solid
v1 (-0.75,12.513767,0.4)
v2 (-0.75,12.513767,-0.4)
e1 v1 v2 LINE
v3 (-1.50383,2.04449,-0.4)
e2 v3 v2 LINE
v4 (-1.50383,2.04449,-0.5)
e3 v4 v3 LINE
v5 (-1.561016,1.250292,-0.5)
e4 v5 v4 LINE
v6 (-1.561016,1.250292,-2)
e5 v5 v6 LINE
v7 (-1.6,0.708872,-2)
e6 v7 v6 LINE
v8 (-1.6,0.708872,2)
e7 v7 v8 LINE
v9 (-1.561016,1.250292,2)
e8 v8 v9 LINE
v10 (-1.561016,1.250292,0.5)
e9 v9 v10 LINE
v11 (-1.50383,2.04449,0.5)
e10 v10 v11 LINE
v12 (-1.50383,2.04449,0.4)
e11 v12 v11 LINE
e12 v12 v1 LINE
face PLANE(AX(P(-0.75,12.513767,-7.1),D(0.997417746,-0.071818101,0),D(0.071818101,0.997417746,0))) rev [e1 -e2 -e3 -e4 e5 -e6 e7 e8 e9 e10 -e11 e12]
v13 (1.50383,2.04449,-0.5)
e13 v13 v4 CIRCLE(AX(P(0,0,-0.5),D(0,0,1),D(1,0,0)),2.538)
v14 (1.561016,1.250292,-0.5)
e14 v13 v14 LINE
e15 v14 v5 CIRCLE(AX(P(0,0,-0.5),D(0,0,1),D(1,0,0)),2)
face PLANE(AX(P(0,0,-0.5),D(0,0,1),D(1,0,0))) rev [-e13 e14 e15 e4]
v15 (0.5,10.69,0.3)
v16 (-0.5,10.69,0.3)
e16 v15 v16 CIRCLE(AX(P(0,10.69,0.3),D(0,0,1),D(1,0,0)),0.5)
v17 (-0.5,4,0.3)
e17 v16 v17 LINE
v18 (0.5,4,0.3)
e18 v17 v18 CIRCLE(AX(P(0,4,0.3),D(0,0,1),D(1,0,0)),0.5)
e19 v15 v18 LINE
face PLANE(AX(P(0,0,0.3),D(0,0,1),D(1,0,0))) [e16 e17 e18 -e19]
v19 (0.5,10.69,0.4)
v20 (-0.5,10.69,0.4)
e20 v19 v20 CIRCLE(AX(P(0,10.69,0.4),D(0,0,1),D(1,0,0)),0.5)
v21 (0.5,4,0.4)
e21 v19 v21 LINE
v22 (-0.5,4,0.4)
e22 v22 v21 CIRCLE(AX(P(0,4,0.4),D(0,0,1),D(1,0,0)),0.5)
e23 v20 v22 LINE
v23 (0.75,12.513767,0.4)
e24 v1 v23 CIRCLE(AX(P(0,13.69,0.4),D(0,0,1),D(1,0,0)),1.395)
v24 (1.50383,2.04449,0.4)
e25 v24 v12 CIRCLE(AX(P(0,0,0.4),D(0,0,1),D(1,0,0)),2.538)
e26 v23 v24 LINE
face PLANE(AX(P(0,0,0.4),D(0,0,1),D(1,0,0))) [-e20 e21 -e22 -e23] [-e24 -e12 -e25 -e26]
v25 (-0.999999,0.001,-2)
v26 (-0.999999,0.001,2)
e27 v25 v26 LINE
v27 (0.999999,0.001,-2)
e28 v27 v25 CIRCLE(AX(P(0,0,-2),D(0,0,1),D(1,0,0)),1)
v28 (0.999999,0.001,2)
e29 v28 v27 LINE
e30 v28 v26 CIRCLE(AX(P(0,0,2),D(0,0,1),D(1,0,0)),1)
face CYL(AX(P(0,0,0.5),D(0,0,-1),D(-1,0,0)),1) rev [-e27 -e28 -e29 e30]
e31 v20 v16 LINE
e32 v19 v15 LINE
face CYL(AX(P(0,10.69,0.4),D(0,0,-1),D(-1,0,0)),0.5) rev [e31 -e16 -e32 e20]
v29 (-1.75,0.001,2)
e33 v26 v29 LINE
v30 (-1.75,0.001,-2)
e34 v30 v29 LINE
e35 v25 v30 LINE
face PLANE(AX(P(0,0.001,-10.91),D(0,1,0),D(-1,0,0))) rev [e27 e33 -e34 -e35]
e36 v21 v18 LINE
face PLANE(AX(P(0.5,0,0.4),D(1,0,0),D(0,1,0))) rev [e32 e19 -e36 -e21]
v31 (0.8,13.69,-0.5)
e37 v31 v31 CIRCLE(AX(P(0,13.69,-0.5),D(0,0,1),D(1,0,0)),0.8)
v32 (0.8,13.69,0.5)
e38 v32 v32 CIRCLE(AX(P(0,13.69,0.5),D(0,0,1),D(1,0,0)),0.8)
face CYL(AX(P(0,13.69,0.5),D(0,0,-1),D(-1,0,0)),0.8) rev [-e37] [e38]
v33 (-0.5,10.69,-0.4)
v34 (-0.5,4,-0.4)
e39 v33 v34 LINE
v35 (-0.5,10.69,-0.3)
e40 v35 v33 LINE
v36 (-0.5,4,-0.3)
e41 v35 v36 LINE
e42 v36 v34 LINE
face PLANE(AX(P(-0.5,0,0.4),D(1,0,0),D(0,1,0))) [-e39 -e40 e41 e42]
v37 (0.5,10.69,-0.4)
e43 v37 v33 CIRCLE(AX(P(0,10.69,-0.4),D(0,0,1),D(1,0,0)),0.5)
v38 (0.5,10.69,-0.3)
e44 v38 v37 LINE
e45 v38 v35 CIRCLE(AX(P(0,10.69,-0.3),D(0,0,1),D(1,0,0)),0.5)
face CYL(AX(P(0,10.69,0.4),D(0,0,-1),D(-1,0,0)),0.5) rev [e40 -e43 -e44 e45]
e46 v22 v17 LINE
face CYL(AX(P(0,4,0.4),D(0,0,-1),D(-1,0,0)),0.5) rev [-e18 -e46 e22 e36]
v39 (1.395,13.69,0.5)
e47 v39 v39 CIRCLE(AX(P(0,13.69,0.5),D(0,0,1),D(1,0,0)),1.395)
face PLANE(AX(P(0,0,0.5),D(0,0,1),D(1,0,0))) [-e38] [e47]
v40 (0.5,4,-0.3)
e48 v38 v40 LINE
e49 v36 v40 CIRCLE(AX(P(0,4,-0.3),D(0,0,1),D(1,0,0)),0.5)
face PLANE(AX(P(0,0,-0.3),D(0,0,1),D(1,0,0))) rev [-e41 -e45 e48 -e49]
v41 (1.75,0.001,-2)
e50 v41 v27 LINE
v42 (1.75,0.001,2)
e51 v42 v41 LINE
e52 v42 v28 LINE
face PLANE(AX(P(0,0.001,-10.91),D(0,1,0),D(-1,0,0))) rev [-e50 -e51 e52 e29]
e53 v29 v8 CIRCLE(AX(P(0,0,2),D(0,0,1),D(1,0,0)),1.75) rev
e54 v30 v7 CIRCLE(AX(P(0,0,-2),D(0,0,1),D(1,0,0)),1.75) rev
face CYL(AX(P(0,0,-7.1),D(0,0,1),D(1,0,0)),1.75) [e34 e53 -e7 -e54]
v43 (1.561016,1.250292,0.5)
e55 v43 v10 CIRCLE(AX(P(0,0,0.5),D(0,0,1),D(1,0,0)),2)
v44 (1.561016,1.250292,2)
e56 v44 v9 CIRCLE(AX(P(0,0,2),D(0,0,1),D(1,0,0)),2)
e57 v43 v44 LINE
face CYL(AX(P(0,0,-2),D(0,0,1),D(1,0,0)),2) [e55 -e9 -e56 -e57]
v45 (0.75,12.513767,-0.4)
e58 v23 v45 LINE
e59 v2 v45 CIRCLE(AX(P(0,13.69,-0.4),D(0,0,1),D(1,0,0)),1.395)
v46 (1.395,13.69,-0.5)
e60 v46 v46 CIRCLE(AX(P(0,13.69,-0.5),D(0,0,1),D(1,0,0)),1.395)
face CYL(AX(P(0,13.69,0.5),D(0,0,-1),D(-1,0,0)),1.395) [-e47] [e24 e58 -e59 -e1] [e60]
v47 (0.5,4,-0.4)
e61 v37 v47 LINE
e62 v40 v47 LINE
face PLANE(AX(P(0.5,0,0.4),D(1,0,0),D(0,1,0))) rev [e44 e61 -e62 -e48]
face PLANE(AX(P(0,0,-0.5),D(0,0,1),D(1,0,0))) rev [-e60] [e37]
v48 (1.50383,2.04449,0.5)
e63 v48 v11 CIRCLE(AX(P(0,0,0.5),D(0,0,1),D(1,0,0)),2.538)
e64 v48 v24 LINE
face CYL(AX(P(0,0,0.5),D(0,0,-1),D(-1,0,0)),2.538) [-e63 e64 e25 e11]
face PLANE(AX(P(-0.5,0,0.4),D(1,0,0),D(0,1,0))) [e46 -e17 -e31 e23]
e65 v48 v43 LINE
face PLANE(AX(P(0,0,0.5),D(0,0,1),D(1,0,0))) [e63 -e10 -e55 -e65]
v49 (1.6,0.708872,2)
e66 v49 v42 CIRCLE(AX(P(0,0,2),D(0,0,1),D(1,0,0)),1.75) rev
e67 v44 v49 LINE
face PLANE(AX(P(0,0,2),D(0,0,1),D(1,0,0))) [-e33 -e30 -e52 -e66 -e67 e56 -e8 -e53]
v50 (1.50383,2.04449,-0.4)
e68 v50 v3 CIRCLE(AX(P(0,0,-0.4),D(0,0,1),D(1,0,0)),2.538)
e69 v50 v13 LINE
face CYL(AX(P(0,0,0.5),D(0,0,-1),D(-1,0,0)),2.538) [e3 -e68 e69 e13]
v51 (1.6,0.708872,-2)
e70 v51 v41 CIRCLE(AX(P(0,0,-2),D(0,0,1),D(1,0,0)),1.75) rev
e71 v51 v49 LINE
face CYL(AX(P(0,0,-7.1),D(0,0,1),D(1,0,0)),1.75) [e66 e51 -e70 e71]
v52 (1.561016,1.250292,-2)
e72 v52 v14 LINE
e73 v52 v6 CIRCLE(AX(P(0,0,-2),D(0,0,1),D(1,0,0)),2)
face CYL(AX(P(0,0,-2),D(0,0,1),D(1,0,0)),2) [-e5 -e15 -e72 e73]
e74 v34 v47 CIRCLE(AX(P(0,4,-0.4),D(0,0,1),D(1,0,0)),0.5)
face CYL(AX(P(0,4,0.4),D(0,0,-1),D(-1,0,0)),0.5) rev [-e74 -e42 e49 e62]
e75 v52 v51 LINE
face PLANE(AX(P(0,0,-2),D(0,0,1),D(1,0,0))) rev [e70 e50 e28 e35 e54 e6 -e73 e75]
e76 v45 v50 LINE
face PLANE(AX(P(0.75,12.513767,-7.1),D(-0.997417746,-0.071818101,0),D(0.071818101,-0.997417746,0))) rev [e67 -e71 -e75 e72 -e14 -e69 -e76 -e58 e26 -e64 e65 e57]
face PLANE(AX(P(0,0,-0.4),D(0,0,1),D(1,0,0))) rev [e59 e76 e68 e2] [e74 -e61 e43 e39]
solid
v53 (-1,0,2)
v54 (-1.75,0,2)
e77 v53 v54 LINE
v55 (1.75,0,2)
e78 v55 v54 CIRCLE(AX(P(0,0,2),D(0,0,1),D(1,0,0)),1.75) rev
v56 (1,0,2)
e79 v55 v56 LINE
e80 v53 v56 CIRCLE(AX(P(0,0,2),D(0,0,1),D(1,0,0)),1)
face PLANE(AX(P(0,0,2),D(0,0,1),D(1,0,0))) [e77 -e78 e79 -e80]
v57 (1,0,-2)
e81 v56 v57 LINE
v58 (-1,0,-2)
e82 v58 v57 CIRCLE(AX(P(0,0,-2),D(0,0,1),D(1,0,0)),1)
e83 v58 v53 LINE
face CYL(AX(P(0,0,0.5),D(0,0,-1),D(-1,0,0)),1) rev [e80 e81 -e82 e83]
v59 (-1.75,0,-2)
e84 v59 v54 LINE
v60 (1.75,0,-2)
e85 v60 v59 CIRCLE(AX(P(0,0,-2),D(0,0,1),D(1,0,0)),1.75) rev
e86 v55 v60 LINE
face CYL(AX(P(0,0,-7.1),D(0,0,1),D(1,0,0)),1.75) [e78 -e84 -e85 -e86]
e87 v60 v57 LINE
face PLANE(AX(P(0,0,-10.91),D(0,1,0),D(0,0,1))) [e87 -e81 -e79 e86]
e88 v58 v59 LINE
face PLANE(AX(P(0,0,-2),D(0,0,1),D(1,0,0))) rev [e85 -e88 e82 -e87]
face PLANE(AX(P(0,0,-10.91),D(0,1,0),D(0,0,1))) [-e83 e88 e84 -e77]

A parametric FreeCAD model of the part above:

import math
import FreeCAD as App
import Part
import Sketcher
from FreeCAD import Vector
Q = App.Units.Quantity


def add_polygon(sketch, points):
    """Adds a closed chain of lines whose ends are joined by coincident constraints."""
    first, n = sketch.GeometryCount, len(points)
    for a, b in zip(points, points[1:] + points[:1]):
        sketch.addGeometry(Part.LineSegment(App.Vector(*a, 0), App.Vector(*b, 0)), False)
    for i in range(n):
        sketch.addConstraint(Sketcher.Constraint("Coincident", first + i, 2, first + (i + 1) % n, 1))

doc = App.newDocument("Part")
body = doc.addObject("PartDesign::Body", "Body")

# Sketch on XY plane
sketch1 = body.newObject("Sketcher::SketchObject", "Sketch")
sketch1.AttachmentSupport = (doc.getObject("XY_Plane"), [""])
sketch1.MapMode = "FlatFace"
sketch1.addGeometry(Part.Circle(Vector(0, 13.69, 0), Vector(0, 0, 1), 1.395), False)
sketch1.addGeometry(Part.Circle(Vector(0, 13.69, 0), Vector(0, 0, 1), 0.8), False)
sketch1.addConstraint(Sketcher.Constraint("Coincident", 1, 3, 0, 3))
sketch1.addConstraint(Sketcher.Constraint("PointOnObject", 0, 3, -2))
sketch1.addConstraint(Sketcher.Constraint("Diameter", 1, Q("1.6 mm")))
sketch1.addConstraint(Sketcher.Constraint("Diameter", 0, Q("2.79 mm")))
sketch1.addConstraint(Sketcher.Constraint("DistanceY", -1, 1, 0, 3, Q("13.69 mm")))
pad1 = body.newObject("PartDesign::Pad", "Pad")
pad1.Profile = sketch1
pad1.Length = 1
pad1.Midplane = True
body2 = doc.addObject("PartDesign::Body", "Body001")

# Sketch on XY plane
sketch2 = body2.newObject("Sketcher::SketchObject", "Sketch001")
sketch2.AttachmentSupport = (doc.getObject("XY_Plane001"), [""])
sketch2.MapMode = "FlatFace"
sketch2.addGeometry(Part.Circle(Vector(0, 0, 0), Vector(0, 0, 1), 2.538), False)
sketch2.addGeometry(Part.Circle(Vector(0, 0, 0), Vector(0, 0, 1), 1), False)
sketch2.addConstraint(Sketcher.Constraint("Coincident", 0, 3, -1, 1))
sketch2.addConstraint(Sketcher.Constraint("Coincident", 1, 3, -1, 1))
sketch2.addConstraint(Sketcher.Constraint("Diameter", 1, Q("2 mm")))
sketch2.addConstraint(Sketcher.Constraint("Diameter", 0, Q("5.076 mm")))
pad2 = body2.newObject("PartDesign::Pad", "Pad001")
pad2.Profile = sketch2
pad2.Length = 1
pad2.Midplane = True
body.AllowCompound = True
doc.recompute()

boolean = body.newObject("PartDesign::Boolean", "Boolean")
boolean.Type = "Fuse"
boolean.addObjects([body2])

# Sketch on XY plane
sketch3 = body.newObject("Sketcher::SketchObject", "Sketch002")
sketch3.AttachmentSupport = (doc.getObject("XY_Plane"), [""])
sketch3.MapMode = "FlatFace"
sketch3.addGeometry(Part.ArcOfCircle(Part.Circle(Vector(0, 13.69, 0), Vector(0, 0, 1), 1.395), math.radians(-122.522748), math.radians(-57.477252)), False)
sketch3.addGeometry(Part.LineSegment(Vector(-0.75, 12.513767, 0), Vector(-1.65, 1.928456, 0)), False)
sketch3.addGeometry(Part.ArcOfCircle(Part.Circle(Vector(0, 0, 0), Vector(0, 0, 1), 2.538), math.radians(49.449486), math.radians(130.550514)), False)
sketch3.addGeometry(Part.LineSegment(Vector(1.65, 1.928456, 0), Vector(0.75, 12.513767, 0)), False)
sketch3.addGeometry(Part.LineSegment(Vector(-0.5, 4, 0), Vector(-0.5, 10.69, 0)), False)
sketch3.addGeometry(Part.ArcOfCircle(Part.Circle(Vector(0, 10.69, 0), Vector(0, 0, 1), 0.5), math.radians(0), math.radians(180)), False)
sketch3.addGeometry(Part.LineSegment(Vector(0.5, 10.69, 0), Vector(0.5, 4, 0)), False)
sketch3.addGeometry(Part.ArcOfCircle(Part.Circle(Vector(0, 4, 0), Vector(0, 0, 1), 0.5), math.radians(180), math.radians(360)), False)
sketch3.addConstraint(Sketcher.Constraint("Coincident", 0, 1, 1, 1))
sketch3.addConstraint(Sketcher.Constraint("Coincident", 1, 2, 2, 2))
sketch3.addConstraint(Sketcher.Constraint("Coincident", 2, 1, 3, 1))
sketch3.addConstraint(Sketcher.Constraint("Coincident", 3, 2, 0, 2))
sketch3.addConstraint(Sketcher.Constraint("Tangent", 4, 2, 5, 2))
sketch3.addConstraint(Sketcher.Constraint("Tangent", 5, 1, 6, 1))
sketch3.addConstraint(Sketcher.Constraint("Tangent", 6, 2, 7, 2))
sketch3.addConstraint(Sketcher.Constraint("Tangent", 7, 1, 4, 1))
sketch3.addConstraint(Sketcher.Constraint("Vertical", 4))
sketch3.addConstraint(Sketcher.Constraint("Vertical", 6))
sketch3.addConstraint(Sketcher.Constraint("Coincident", 2, 3, -1, 1))
sketch3.addConstraint(Sketcher.Constraint("Symmetric", 0, 1, 3, 2, -2))
sketch3.addConstraint(Sketcher.Constraint("PointOnObject", 5, 3, -2))
sketch3.addConstraint(Sketcher.Constraint("Horizontal", 1, 2, 2, 1))
sketch3.addConstraint(Sketcher.Constraint("Radius", 5, Q("0.5 mm")))
sketch3.addConstraint(Sketcher.Constraint("DistanceY", -1, 1, 7, 3, Q("4 mm")))
sketch3.addConstraint(Sketcher.Constraint("Radius", 0, Q("1.395 mm")))
sketch3.addConstraint(Sketcher.Constraint("Radius", 2, Q("2.538 mm")))
sketch3.addConstraint(Sketcher.Constraint("DistanceY", 5, 3, 0, 3, Q("3 mm")))
sketch3.addConstraint(Sketcher.Constraint("DistanceY", 4, 1, 4, 2, Q("6.69 mm")))
sketch3.addConstraint(Sketcher.Constraint("DistanceX", 1, 2, 0, 1, Q("0.9 mm")))
sketch3.addConstraint(Sketcher.Constraint("DistanceX", 1, 2, 2, 1, Q("3.3 mm")))
pad3 = body.newObject("PartDesign::Pad", "Pad002")
pad3.Profile = sketch3
pad3.Length = 0.8
pad3.Midplane = True

# Sketch on XY plane
sketch4 = body.newObject("Sketcher::SketchObject", "Sketch003")
sketch4.AttachmentSupport = (doc.getObject("XY_Plane"), [""])
sketch4.MapMode = "FlatFace"
sketch4.addGeometry(Part.LineSegment(Vector(-0.5, 10.69, 0), Vector(-0.5, 4, 0)), False)
sketch4.addGeometry(Part.ArcOfCircle(Part.Circle(Vector(0, 4, 0), Vector(0, 0, 1), 0.5), math.radians(180), math.radians(360)), False)
sketch4.addGeometry(Part.LineSegment(Vector(0.5, 4, 0), Vector(0.5, 10.69, 0)), False)
sketch4.addGeometry(Part.ArcOfCircle(Part.Circle(Vector(0, 10.69, 0), Vector(0, 0, 1), 0.5), math.radians(0), math.radians(180)), False)
sketch4.addConstraint(Sketcher.Constraint("Tangent", 0, 2, 1, 1))
sketch4.addConstraint(Sketcher.Constraint("Tangent", 1, 2, 2, 1))
sketch4.addConstraint(Sketcher.Constraint("Tangent", 2, 2, 3, 1))
sketch4.addConstraint(Sketcher.Constraint("Tangent", 3, 2, 0, 1))
sketch4.addConstraint(Sketcher.Constraint("Vertical", 0))
sketch4.addConstraint(Sketcher.Constraint("Vertical", 2))
sketch4.addConstraint(Sketcher.Constraint("PointOnObject", 1, 3, -2))
sketch4.addConstraint(Sketcher.Constraint("Radius", 1, Q("0.5 mm")))
sketch4.addConstraint(Sketcher.Constraint("DistanceY", -1, 1, 1, 3, Q("4 mm")))
sketch4.addConstraint(Sketcher.Constraint("DistanceY", 0, 2, 0, 1, Q("6.69 mm")))
pad4 = body.newObject("PartDesign::Pad", "Pad003")
pad4.Profile = sketch4
pad4.Length = 0.6
pad4.Midplane = True

# Sketch on XY plane
sketch5 = body.newObject("Sketcher::SketchObject", "Sketch004")
sketch5.AttachmentSupport = (doc.getObject("XY_Plane"), [""])
sketch5.MapMode = "FlatFace"
sketch5.AttachmentOffset = App.Placement(Vector(0, 0, 0.5), App.Rotation())
sketch5.addGeometry(Part.Circle(Vector(0, 0, 0), Vector(0, 0, 1), 2), False)
sketch5.addGeometry(Part.Circle(Vector(0, 0, 0), Vector(0, 0, 1), 1), False)
sketch5.addConstraint(Sketcher.Constraint("Coincident", 0, 3, -1, 1))
sketch5.addConstraint(Sketcher.Constraint("Coincident", 1, 3, -1, 1))
sketch5.addConstraint(Sketcher.Constraint("Diameter", 0, Q("4 mm")))
sketch5.addConstraint(Sketcher.Constraint("Diameter", 1, Q("2 mm")))
pad5 = body.newObject("PartDesign::Pad", "Pad004")
pad5.Profile = sketch5
pad5.Type = "TwoLengths"
pad5.Length = 1.5
pad5.Length2 = 2.5

# Sketch on XY plane
sketch6 = body.newObject("Sketcher::SketchObject", "Sketch005")
sketch6.AttachmentSupport = (doc.getObject("XY_Plane"), [""])
sketch6.MapMode = "FlatFace"
sketch6.addGeometry(Part.LineSegment(Vector(-0.75, 12.513767, 0), Vector(-2.890594, 1.97344, 0)), False)
sketch6.addGeometry(Part.ArcOfCircle(Part.Circle(Vector(0, 0, 0), Vector(0, 0, 1), 3.5), math.radians(145.678228), math.radians(394.321772)), False)
sketch6.addGeometry(Part.LineSegment(Vector(2.890594, 1.97344, 0), Vector(0.75, 12.513767, 0)), False)
sketch6.addGeometry(Part.LineSegment(Vector(0.75, 12.513767, 0), Vector(1.6, 0.708872, 0)), False)
sketch6.addGeometry(Part.ArcOfCircle(Part.Circle(Vector(0, 0, 0), Vector(0, 0, 1), 1.75), math.radians(156.104492), math.radians(383.895508)), False)
sketch6.addGeometry(Part.LineSegment(Vector(-1.6, 0.708872, 0), Vector(-0.75, 12.513767, 0)), False)
sketch6.addConstraint(Sketcher.Constraint("Coincident", 0, 2, 1, 1))
sketch6.addConstraint(Sketcher.Constraint("Coincident", 1, 2, 2, 1))
sketch6.addConstraint(Sketcher.Constraint("Coincident", 2, 2, 3, 1))
sketch6.addConstraint(Sketcher.Constraint("Coincident", 3, 2, 4, 2))
sketch6.addConstraint(Sketcher.Constraint("Coincident", 4, 1, 5, 1))
sketch6.addConstraint(Sketcher.Constraint("Coincident", 5, 2, 0, 1))
sketch6.addConstraint(Sketcher.Constraint("Coincident", 1, 3, -1, 1))
sketch6.addConstraint(Sketcher.Constraint("Coincident", 4, 3, -1, 1))
sketch6.addConstraint(Sketcher.Constraint("Symmetric", 2, 2, 5, 2, -2))
sketch6.addConstraint(Sketcher.Constraint("Horizontal", 0, 2, 1, 2))
sketch6.addConstraint(Sketcher.Constraint("Horizontal", 3, 2, 4, 1))
sketch6.addConstraint(Sketcher.Constraint("Radius", 1, Q("3.5 mm")))
sketch6.addConstraint(Sketcher.Constraint("Radius", 4, Q("1.75 mm")))
sketch6.addConstraint(Sketcher.Constraint("DistanceX", -1, 1, 3, 2, Q("1.6 mm")))
sketch6.addConstraint(Sketcher.Constraint("DistanceX", 5, 2, 2, 2, Q("1.5 mm")))
sketch6.addConstraint(Sketcher.Constraint("DistanceY", -1, 1, 0, 2, Q("1.97344 mm")))
sketch6.addConstraint(Sketcher.Constraint("Distance", 0, Q("10.755493 mm")))
pocket1 = body.newObject("PartDesign::Pocket", "Pocket")
pocket1.Profile = sketch6
pocket1.Length = 14.2
pocket1.Midplane = True

# Sketch on XY plane
sketch7 = body.newObject("Sketcher::SketchObject", "Sketch006")
sketch7.AttachmentSupport = (doc.getObject("XY_Plane"), [""])
sketch7.MapMode = "FlatFace"
add_polygon(sketch7, [(-4.677698, 0.001), (-4.677698, 0), (5.21744, 0), (5.21744, 0.001)])  # lines 0-3
sketch7.addConstraint(Sketcher.Constraint("Vertical", 0))
sketch7.addConstraint(Sketcher.Constraint("Horizontal", 1))
sketch7.addConstraint(Sketcher.Constraint("Vertical", 2))
sketch7.addConstraint(Sketcher.Constraint("Horizontal", 3))
sketch7.addConstraint(Sketcher.Constraint("PointOnObject", 0, 2, -1))
sketch7.addConstraint(Sketcher.Constraint("DistanceY", 0, 2, 0, 1, Q("0.001 mm")))
sketch7.addConstraint(Sketcher.Constraint("DistanceX", 1, 1, 1, 2, Q("9.895137 mm")))
sketch7.addConstraint(Sketcher.Constraint("DistanceX", -1, 1, 1, 2, Q("5.21744 mm")))
pocket2 = body.newObject("PartDesign::Pocket", "Pocket001")
pocket2.Profile = sketch7
pocket2.Length = 21.82
pocket2.Midplane = True

doc.recompute()
